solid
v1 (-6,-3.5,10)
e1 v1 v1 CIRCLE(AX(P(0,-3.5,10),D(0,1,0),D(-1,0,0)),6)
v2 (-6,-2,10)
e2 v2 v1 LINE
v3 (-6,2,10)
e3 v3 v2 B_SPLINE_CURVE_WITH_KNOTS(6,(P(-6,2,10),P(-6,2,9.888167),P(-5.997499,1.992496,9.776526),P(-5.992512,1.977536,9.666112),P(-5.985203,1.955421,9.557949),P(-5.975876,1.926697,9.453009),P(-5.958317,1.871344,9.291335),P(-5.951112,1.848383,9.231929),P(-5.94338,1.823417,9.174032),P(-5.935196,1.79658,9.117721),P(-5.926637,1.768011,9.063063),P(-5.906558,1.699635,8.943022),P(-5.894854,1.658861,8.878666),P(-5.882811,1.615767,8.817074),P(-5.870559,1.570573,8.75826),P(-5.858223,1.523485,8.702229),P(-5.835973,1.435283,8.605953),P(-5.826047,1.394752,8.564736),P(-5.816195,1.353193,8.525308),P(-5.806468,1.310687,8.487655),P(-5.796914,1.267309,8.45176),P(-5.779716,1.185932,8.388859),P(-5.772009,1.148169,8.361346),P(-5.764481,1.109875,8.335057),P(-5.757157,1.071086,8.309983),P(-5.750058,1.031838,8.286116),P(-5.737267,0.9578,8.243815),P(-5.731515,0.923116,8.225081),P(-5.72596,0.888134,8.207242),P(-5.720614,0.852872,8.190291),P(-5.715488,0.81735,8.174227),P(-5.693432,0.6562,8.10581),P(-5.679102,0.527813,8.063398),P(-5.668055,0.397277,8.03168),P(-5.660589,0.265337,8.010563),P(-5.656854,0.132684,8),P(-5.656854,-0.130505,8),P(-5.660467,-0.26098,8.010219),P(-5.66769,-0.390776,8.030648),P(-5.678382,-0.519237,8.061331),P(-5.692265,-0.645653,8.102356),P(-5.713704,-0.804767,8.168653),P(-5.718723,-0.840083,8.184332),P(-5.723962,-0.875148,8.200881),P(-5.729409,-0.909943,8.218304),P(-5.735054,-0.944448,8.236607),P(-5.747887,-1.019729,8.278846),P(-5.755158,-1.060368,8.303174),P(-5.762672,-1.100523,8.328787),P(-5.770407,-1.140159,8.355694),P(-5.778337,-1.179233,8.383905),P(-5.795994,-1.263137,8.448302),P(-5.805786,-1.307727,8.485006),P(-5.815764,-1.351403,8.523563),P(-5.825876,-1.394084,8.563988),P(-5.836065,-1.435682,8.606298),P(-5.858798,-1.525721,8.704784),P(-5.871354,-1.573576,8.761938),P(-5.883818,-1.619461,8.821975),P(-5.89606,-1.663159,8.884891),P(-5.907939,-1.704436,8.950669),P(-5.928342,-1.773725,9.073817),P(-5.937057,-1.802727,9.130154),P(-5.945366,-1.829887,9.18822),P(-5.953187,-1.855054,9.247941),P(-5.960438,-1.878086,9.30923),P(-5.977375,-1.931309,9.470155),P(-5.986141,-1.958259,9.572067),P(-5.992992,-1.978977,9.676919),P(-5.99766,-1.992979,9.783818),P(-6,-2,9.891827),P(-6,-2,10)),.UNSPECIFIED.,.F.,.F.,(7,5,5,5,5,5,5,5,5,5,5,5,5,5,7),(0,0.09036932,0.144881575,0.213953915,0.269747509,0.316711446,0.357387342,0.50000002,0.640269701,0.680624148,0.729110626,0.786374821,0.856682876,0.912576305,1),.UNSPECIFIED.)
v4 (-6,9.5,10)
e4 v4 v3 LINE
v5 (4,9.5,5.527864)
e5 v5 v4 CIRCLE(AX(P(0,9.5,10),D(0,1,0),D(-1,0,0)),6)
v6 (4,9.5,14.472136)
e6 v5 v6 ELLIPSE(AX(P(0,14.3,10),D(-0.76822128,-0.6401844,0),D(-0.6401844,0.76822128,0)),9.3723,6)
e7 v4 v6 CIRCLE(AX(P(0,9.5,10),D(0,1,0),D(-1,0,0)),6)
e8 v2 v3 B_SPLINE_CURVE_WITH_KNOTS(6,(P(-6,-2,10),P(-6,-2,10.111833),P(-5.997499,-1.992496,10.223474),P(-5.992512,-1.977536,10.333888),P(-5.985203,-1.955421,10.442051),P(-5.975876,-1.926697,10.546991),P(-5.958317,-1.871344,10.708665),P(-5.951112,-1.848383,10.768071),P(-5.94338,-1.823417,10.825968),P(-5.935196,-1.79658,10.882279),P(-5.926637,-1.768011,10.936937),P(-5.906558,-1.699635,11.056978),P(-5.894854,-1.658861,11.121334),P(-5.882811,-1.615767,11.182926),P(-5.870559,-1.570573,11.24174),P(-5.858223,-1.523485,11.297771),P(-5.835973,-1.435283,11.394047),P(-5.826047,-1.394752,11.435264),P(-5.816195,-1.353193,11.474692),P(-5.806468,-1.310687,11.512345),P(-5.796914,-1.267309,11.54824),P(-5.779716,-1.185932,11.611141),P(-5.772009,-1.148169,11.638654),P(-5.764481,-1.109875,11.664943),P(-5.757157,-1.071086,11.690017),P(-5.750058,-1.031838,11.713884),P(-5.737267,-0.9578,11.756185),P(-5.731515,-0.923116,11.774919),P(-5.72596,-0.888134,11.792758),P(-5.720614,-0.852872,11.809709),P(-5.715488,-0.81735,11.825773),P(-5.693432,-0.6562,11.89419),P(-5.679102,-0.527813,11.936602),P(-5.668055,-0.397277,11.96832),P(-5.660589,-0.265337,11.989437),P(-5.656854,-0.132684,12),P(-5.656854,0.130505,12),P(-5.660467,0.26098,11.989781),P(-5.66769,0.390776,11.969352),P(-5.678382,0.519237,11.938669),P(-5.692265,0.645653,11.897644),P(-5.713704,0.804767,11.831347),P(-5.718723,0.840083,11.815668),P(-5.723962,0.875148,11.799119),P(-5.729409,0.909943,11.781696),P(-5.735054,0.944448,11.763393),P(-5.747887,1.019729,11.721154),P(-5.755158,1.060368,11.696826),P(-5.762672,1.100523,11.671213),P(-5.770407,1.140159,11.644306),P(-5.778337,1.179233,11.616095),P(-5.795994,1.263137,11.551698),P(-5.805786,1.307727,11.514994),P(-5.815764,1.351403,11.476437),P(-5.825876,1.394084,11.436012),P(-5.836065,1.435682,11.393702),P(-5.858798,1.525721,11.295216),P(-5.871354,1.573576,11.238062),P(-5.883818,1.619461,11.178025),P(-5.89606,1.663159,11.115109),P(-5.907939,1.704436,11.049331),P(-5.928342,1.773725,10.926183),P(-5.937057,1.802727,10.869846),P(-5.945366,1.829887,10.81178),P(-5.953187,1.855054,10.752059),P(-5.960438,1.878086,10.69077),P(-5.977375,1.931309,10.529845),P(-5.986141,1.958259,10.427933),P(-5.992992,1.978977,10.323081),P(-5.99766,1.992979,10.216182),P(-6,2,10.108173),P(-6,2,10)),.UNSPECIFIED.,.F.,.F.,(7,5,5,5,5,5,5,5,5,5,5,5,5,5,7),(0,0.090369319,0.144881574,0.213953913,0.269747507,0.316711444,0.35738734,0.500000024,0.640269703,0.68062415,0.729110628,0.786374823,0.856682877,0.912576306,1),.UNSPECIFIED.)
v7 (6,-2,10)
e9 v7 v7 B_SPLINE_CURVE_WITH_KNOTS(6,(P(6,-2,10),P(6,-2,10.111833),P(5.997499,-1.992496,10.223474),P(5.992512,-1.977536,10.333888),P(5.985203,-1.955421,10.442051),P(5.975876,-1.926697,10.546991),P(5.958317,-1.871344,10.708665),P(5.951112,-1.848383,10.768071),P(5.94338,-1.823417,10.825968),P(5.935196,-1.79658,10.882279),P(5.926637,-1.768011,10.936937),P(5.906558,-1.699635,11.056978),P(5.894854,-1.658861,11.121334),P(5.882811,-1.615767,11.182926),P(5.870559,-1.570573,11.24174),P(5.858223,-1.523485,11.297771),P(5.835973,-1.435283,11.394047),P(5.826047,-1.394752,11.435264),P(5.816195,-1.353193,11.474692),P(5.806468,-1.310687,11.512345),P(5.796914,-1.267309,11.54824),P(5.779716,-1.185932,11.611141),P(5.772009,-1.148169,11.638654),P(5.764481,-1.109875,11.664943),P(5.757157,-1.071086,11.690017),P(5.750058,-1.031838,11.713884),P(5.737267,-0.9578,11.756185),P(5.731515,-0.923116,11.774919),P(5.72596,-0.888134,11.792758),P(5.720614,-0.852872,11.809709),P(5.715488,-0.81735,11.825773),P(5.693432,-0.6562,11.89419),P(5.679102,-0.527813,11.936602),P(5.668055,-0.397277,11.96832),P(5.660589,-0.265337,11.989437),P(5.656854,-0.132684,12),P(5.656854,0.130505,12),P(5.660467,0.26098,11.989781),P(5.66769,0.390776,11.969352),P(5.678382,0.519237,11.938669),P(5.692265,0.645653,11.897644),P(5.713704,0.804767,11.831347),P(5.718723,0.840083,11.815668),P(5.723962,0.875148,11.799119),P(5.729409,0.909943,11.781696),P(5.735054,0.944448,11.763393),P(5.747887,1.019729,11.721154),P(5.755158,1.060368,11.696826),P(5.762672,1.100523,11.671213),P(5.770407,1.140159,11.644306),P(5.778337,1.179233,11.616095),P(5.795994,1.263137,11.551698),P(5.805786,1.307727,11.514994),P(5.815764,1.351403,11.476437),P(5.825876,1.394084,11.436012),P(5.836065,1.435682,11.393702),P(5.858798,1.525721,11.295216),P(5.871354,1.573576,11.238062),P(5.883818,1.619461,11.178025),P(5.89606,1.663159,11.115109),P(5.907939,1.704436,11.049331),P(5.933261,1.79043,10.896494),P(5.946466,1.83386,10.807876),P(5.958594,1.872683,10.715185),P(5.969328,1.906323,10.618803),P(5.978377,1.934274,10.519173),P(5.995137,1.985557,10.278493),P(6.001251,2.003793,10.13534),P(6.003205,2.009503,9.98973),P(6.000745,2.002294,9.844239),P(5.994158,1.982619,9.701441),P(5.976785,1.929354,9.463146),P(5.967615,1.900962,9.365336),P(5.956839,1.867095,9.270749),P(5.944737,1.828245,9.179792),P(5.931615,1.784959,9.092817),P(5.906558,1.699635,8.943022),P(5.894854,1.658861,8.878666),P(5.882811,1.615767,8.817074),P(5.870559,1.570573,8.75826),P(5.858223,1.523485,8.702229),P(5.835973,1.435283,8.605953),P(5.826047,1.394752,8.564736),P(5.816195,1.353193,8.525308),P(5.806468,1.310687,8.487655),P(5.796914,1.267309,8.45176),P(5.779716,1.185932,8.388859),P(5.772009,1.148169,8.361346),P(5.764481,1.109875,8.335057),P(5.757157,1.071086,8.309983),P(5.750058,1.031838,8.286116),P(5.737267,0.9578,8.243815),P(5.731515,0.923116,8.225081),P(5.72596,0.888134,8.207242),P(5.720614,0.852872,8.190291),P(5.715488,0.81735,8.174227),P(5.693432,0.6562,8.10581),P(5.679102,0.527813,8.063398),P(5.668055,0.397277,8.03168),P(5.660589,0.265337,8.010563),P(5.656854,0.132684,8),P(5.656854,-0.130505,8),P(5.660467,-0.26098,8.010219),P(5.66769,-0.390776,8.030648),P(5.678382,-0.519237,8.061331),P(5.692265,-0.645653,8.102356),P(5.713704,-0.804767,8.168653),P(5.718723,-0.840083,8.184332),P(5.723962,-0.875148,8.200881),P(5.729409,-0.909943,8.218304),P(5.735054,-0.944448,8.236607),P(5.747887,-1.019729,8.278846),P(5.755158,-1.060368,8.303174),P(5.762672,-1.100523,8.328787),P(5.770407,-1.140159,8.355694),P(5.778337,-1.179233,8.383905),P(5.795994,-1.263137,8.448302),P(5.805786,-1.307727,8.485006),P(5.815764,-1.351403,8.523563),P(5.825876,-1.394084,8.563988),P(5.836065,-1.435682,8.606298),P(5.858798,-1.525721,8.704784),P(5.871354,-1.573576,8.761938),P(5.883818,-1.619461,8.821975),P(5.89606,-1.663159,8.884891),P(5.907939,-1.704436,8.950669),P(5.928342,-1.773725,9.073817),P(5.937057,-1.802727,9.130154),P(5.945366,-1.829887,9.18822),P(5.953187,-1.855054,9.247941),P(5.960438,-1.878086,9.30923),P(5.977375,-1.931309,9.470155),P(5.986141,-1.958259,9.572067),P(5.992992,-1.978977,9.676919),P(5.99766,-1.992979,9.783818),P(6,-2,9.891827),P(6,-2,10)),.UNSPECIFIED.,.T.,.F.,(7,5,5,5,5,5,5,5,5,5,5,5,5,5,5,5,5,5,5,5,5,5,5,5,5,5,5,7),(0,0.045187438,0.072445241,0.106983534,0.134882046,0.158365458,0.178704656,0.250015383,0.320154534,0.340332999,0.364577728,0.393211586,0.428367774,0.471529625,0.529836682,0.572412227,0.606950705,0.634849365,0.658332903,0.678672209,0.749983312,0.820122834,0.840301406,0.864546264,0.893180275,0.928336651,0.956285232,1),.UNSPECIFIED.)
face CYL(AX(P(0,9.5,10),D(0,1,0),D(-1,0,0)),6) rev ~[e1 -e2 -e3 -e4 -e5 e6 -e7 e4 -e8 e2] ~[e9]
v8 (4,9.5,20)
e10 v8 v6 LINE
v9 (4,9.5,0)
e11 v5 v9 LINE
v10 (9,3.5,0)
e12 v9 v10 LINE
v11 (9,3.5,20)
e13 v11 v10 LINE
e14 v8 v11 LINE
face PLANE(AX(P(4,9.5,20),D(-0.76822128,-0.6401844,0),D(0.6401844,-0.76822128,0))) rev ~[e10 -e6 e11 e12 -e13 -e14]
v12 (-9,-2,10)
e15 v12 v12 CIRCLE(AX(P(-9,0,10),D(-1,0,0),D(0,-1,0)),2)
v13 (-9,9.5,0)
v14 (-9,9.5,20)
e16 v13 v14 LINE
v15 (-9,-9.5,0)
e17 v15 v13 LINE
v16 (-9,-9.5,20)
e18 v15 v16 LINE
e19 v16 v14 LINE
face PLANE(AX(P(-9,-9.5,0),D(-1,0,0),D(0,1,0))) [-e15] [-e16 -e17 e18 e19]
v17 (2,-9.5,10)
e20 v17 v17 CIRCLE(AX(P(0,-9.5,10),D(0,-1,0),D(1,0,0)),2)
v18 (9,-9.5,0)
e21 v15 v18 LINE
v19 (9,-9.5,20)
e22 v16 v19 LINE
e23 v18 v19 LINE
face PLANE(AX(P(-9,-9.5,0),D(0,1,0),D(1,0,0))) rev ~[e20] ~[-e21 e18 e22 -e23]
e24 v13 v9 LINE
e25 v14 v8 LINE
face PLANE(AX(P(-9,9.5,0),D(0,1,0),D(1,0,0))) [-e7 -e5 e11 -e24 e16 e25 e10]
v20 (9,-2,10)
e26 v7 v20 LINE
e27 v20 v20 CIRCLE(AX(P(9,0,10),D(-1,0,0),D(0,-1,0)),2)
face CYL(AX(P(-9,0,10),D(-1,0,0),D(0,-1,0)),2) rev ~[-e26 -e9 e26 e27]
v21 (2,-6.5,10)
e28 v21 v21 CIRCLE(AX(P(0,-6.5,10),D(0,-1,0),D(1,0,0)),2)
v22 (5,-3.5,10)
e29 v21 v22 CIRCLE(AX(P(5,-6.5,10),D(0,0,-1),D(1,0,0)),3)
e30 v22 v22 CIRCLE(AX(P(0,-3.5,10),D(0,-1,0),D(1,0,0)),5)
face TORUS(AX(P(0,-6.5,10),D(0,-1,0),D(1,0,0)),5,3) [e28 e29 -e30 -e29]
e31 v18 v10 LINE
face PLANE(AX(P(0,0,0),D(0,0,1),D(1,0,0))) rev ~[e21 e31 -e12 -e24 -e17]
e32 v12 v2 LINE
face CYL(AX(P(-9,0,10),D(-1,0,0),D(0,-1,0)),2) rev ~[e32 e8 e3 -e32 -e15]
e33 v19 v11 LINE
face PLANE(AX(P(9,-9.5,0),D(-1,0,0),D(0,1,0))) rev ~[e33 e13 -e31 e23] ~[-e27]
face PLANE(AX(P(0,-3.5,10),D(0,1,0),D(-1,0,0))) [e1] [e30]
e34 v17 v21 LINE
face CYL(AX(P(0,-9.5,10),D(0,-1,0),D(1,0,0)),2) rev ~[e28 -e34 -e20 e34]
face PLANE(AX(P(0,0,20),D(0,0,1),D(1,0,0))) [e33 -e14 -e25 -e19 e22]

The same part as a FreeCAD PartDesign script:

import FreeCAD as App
import Part
import Sketcher

V = App.Vector


def edges_at(feature, points):
    """Names of the edges that pass closest to the given points."""
    edges = feature.Shape.Edges
    near = lambda p: min(range(len(edges)), key=lambda i: edges[i].distToShape(Part.Vertex(*p))[0])
    return sorted({f"Edge{near(p) + 1}" for p in points})

doc = App.newDocument("Part")
body = doc.addObject("PartDesign::Body", "Body")

# Sketch on XY plane
sketch1 = body.newObject("Sketcher::SketchObject", "Sketch")
sketch1.AttachmentSupport = (doc.getObject("XY_Plane"), [""])
sketch1.MapMode = "FlatFace"
sketch1.addGeometry([
    Part.LineSegment(V(-9, 10, 0), V(-9, -10, 0)),
    Part.LineSegment(V(-9, -10, 0), V(9, -10, 0)),
    Part.LineSegment(V(9, -10, 0), V(9, 10, 0)),
    Part.LineSegment(V(9, 10, 0), V(-9, 10, 0)),
], False)
sketch1.addConstraint([
    Sketcher.Constraint("Coincident", 0, 2, 1, 1),
    Sketcher.Constraint("Coincident", 1, 2, 2, 1),
    Sketcher.Constraint("Coincident", 2, 2, 3, 1),
    Sketcher.Constraint("Coincident", 3, 2, 0, 1),
    Sketcher.Constraint("Vertical", 0),
    Sketcher.Constraint("Horizontal", 1),
    Sketcher.Constraint("Vertical", 2),
    Sketcher.Constraint("Horizontal", 3),
    Sketcher.Constraint("Symmetric", 0, 2, 2, 2, -1, 1),
    Sketcher.Constraint("DistanceX", 1, 1, 1, 2, 18.0),
    Sketcher.Constraint("DistanceY", 0, 2, 0, 1, 19.0),
])
pad1 = body.newObject("PartDesign::Pad", "Pad")
pad1.Profile = sketch1
pad1.Length = 20

# Sketch on XZ plane
sketch2 = body.newObject("Sketcher::SketchObject", "Sketch001")
sketch2.AttachmentSupport = (doc.getObject("XZ_Plane"), [""])
sketch2.MapMode = "FlatFace"
sketch2.AttachmentOffset = App.Placement(V(0, 0, -9.5), App.Rotation())
sketch2.addGeometry(Part.Circle(V(0, 10, 0), V(0, 0, 1), 6), False)
sketch2.addConstraint([
    Sketcher.Constraint("PointOnObject", 0, 3, -2),
    Sketcher.Constraint("Diameter", 0, 12.0),
    Sketcher.Constraint("DistanceY", -1, 1, 0, 3, 10.0),
])
pocket1 = body.newObject("PartDesign::Pocket", "Pocket")
pocket1.Profile = sketch2
pocket1.Length = 13
pocket1.Reversed = True

# Sketch on XZ plane
sketch3 = body.newObject("Sketcher::SketchObject", "Sketch002")
sketch3.AttachmentSupport = (doc.getObject("XZ_Plane"), [""])
sketch3.MapMode = "FlatFace"
sketch3.AttachmentOffset = App.Placement(V(0, 0, 9.5), App.Rotation())
sketch3.addGeometry(Part.Circle(V(0, 10, 0), V(0, 0, 1), 2), False)
sketch3.addConstraint([
    Sketcher.Constraint("PointOnObject", 0, 3, -2),
    Sketcher.Constraint("Diameter", 0, 4.0),
    Sketcher.Constraint("DistanceY", -1, 1, 0, 3, 10.0),
])
pocket2 = body.newObject("PartDesign::Pocket", "Pocket001")
pocket2.Profile = sketch3
pocket2.Length = 18
doc.recompute()

fillet = body.newObject("PartDesign::Fillet", "Fillet")
fillet.Base = (pocket2, edges_at(pocket2, [(-2, -3.5, 10)]))
fillet.Radius = 3

# Sketch on YZ plane
sketch4 = body.newObject("Sketcher::SketchObject", "Sketch003")
sketch4.AttachmentSupport = (doc.getObject("YZ_Plane"), [""])
sketch4.MapMode = "FlatFace"
sketch4.AttachmentOffset = App.Placement(V(0, 0, -9), App.Rotation())
sketch4.addGeometry(Part.Circle(V(0, 10, 0), V(0, 0, 1), 2), False)
sketch4.addConstraint([
    Sketcher.Constraint("PointOnObject", 0, 3, -2),
    Sketcher.Constraint("Diameter", 0, 4.0),
    Sketcher.Constraint("DistanceY", -1, 1, 0, 3, 10.0),
])
pocket3 = body.newObject("PartDesign::Pocket", "Pocket002")
pocket3.Profile = sketch4
pocket3.Length = 25
pocket3.Reversed = True

# Sketch on XY plane
sketch5 = body.newObject("Sketcher::SketchObject", "Sketch004")
sketch5.AttachmentSupport = (doc.getObject("XY_Plane"), [""])
sketch5.MapMode = "FlatFace"
sketch5.AttachmentOffset = App.Placement(V(0, 0, 20), App.Rotation())
sketch5.addGeometry([
    Part.LineSegment(V(9, 10, 0), V(4, 10, 0)),
    Part.LineSegment(V(4, 10, 0), V(9, 4, 0)),
    Part.LineSegment(V(9, 4, 0), V(9, 10, 0)),
], False)
sketch5.addConstraint([
    Sketcher.Constraint("Coincident", 0, 2, 1, 1),
    Sketcher.Constraint("Coincident", 1, 2, 2, 1),
    Sketcher.Constraint("Coincident", 2, 2, 0, 1),
    Sketcher.Constraint("Horizontal", 0),
    Sketcher.Constraint("Vertical", 2),
    Sketcher.Constraint("DistanceX", 0, 2, 0, 1, 5.0),
    Sketcher.Constraint("DistanceY", 2, 1, 2, 2, 6.0),
    Sketcher.Constraint("DistanceX", -1, 1, 0, 2, 4.0),
    Sketcher.Constraint("DistanceY", -1, 1, 0, 2, 9.5),
])
pocket4 = body.newObject("PartDesign::Pocket", "Pocket003")
pocket4.Profile = sketch5
pocket4.Length = 25

doc.recompute()
